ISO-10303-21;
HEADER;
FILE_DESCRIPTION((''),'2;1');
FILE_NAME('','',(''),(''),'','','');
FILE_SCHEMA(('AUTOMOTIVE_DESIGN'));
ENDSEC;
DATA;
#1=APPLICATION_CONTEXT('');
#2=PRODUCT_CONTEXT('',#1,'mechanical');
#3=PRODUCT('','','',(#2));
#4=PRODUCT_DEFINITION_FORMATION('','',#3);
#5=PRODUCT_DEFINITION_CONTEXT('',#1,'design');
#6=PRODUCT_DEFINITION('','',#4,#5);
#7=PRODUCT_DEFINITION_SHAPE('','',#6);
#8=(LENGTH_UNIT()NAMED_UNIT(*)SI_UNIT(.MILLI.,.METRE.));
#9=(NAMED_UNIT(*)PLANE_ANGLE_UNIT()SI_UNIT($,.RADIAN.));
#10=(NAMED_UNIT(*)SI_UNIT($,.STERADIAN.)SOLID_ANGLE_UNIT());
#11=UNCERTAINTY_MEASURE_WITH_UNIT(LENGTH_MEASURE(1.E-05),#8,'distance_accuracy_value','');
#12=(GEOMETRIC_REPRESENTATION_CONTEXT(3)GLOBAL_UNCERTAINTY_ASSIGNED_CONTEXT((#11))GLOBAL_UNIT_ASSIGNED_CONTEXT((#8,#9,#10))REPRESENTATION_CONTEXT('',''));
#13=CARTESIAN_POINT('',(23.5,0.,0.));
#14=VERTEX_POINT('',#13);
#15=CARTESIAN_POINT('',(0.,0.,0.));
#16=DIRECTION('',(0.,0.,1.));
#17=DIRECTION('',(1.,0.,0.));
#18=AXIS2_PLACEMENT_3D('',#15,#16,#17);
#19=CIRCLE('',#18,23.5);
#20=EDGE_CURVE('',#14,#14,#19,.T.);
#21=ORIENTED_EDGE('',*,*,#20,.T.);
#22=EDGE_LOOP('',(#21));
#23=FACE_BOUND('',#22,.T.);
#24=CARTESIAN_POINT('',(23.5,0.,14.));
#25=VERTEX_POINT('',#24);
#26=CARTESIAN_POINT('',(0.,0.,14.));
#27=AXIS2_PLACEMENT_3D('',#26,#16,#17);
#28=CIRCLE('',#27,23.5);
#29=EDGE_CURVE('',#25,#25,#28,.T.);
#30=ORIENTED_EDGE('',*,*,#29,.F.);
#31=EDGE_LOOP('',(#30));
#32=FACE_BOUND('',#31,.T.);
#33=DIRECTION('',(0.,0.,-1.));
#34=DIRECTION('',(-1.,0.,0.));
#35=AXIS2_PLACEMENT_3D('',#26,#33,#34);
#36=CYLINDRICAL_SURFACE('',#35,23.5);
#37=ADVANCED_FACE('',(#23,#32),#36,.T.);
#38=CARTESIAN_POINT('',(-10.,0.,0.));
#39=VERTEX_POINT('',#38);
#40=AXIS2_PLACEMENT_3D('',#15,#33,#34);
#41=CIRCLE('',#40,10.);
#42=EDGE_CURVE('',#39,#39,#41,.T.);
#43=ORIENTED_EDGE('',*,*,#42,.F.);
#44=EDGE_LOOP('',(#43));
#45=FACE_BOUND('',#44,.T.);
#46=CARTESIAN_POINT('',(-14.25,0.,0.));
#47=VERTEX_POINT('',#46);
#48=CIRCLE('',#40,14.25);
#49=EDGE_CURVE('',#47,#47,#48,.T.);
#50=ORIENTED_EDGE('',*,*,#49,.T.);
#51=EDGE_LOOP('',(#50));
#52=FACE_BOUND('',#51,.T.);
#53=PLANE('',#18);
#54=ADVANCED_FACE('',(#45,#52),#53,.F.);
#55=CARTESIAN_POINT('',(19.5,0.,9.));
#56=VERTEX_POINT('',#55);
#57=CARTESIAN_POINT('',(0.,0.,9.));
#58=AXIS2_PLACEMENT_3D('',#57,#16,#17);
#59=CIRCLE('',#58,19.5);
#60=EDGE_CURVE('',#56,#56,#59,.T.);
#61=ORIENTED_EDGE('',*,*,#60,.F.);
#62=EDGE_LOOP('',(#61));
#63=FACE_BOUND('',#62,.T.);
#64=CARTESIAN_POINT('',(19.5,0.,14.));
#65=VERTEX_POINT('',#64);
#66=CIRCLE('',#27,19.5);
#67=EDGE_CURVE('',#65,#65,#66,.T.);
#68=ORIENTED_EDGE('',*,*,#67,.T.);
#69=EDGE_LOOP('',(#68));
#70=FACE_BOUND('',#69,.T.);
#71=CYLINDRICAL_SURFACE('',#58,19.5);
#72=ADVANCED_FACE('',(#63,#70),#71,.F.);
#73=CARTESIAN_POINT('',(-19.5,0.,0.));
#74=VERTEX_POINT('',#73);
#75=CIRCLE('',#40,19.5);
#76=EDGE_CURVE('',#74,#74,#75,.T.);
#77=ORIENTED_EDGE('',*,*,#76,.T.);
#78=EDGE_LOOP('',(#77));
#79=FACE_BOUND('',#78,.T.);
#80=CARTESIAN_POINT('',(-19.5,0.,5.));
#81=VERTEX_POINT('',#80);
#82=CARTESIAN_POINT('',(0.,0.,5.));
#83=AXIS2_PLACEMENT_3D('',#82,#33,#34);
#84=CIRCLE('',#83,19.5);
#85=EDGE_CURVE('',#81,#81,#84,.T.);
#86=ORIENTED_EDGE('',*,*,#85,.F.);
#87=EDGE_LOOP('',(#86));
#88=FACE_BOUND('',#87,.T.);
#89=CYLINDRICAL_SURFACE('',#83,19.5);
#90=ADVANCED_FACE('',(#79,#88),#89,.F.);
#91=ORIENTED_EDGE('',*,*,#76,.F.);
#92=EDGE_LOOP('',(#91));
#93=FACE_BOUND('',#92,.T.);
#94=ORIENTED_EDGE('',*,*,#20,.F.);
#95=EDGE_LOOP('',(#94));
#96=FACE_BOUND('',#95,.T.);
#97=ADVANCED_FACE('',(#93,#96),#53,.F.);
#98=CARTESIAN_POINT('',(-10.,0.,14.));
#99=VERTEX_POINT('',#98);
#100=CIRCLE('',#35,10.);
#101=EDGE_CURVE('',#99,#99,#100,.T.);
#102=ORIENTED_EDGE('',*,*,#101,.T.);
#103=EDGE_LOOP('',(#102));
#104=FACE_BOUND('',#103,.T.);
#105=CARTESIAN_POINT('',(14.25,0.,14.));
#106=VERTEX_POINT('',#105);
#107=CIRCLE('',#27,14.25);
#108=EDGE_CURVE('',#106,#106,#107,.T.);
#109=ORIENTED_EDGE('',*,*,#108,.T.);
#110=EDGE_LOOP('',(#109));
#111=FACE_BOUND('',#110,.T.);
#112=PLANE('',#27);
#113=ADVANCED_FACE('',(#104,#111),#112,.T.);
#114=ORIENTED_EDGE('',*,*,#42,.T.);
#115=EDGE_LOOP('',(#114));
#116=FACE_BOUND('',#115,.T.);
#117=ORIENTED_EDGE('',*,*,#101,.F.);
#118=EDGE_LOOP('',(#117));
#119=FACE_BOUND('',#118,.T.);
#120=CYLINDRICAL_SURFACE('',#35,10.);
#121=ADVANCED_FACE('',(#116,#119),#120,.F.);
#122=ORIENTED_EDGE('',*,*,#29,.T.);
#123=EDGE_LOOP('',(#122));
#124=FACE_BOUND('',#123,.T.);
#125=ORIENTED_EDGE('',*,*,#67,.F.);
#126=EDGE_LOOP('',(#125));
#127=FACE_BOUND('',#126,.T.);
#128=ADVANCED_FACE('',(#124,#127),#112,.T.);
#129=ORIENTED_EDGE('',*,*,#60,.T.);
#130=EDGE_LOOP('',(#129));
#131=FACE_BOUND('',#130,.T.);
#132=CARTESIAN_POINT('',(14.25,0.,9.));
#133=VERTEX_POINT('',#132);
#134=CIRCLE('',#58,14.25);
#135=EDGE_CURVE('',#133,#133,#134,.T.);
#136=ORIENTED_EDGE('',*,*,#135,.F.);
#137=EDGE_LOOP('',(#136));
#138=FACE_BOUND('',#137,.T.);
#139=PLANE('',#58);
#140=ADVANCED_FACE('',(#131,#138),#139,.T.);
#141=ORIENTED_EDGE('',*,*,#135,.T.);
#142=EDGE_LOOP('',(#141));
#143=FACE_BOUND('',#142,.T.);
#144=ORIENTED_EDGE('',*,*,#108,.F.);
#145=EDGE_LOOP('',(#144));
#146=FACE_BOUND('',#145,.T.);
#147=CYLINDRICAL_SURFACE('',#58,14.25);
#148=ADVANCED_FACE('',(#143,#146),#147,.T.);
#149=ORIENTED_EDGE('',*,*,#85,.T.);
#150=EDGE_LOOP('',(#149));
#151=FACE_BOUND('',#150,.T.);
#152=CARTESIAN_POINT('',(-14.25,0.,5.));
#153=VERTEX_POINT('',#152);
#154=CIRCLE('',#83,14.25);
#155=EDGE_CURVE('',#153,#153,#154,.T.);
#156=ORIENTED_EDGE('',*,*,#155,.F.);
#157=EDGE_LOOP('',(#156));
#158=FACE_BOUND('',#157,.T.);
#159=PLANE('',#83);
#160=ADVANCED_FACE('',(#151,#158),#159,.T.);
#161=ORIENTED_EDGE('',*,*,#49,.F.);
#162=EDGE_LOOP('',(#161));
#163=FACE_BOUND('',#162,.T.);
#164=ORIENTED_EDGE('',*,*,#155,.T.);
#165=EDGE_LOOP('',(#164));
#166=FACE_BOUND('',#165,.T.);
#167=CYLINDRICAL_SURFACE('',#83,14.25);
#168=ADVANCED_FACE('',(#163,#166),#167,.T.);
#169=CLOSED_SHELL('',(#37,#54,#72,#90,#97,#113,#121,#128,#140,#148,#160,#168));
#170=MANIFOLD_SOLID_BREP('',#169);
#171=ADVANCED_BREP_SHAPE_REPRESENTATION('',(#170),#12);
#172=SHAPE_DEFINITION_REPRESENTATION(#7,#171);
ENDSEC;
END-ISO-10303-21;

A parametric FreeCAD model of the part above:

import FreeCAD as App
import Part
import Sketcher

V = App.Vector

doc = App.newDocument("Part")
body = doc.addObject("PartDesign::Body", "Body")

sketch1 = body.newObject("Sketcher::SketchObject", "Sketch")
sketch1.AttachmentSupport = (doc.getObject("XY_Plane"), [""])
sketch1.MapMode = "FlatFace"
sketch1.addGeometry(Part.Circle(V(0, 0, 0), V(0, 0, 1), 23.5), False)
sketch1.addConstraint([
    Sketcher.Constraint("Coincident", 0, 3, -1, 1),
    Sketcher.Constraint("Diameter", 0, 47.0),
])
pad1 = body.newObject("PartDesign::Pad", "Pad")
pad1.Profile = sketch1
pad1.Length = 14

sketch2 = body.newObject("Sketcher::SketchObject", "Sketch001")
sketch2.AttachmentSupport = (doc.getObject("XY_Plane"), [""])
sketch2.MapMode = "FlatFace"
sketch2.AttachmentOffset = App.Placement(V(0, 0, 14), App.Rotation())
sketch2.addGeometry([
    Part.Circle(V(0, 0, 0), V(0, 0, 1), 19.5),
    Part.Circle(V(0, 0, 0), V(0, 0, 1), 14.25),
], False)
sketch2.addConstraint([
    Sketcher.Constraint("Coincident", 0, 3, -1, 1),
    Sketcher.Constraint("Coincident", 1, 3, -1, 1),
    Sketcher.Constraint("Diameter", 0, 39.0),
    Sketcher.Constraint("Diameter", 1, 28.5),
])
pocket1 = body.newObject("PartDesign::Pocket", "Pocket")
pocket1.Profile = sketch2
pocket1.Length = 5

sketch3 = body.newObject("Sketcher::SketchObject", "Sketch002")
sketch3.AttachmentSupport = (doc.getObject("XY_Plane"), [""])
sketch3.MapMode = "FlatFace"
sketch3.addGeometry([
    Part.Circle(V(0, 0, 0), V(0, 0, 1), 19.5),
    Part.Circle(V(0, 0, 0), V(0, 0, 1), 14.25),
], False)
sketch3.addConstraint([
    Sketcher.Constraint("Coincident", 0, 3, -1, 1),
    Sketcher.Constraint("Coincident", 1, 3, -1, 1),
    Sketcher.Constraint("Diameter", 0, 39.0),
    Sketcher.Constraint("Diameter", 1, 28.5),
])
pocket2 = body.newObject("PartDesign::Pocket", "Pocket001")
pocket2.Profile = sketch3
pocket2.Length = 5
pocket2.Reversed = True

sketch4 = body.newObject("Sketcher::SketchObject", "Sketch003")
sketch4.AttachmentSupport = (doc.getObject("XY_Plane"), [""])
sketch4.MapMode = "FlatFace"
sketch4.addGeometry(Part.Circle(V(0, 0, 0), V(0, 0, 1), 10), False)
sketch4.addConstraint([
    Sketcher.Constraint("Coincident", 0, 3, -1, 1),
    Sketcher.Constraint("Diameter", 0, 20.0),
])
pocket3 = body.newObject("PartDesign::Pocket", "Pocket002")
pocket3.Profile = sketch4
pocket3.Type = "ThroughAll"
pocket3.Reversed = True

doc.recompute()
